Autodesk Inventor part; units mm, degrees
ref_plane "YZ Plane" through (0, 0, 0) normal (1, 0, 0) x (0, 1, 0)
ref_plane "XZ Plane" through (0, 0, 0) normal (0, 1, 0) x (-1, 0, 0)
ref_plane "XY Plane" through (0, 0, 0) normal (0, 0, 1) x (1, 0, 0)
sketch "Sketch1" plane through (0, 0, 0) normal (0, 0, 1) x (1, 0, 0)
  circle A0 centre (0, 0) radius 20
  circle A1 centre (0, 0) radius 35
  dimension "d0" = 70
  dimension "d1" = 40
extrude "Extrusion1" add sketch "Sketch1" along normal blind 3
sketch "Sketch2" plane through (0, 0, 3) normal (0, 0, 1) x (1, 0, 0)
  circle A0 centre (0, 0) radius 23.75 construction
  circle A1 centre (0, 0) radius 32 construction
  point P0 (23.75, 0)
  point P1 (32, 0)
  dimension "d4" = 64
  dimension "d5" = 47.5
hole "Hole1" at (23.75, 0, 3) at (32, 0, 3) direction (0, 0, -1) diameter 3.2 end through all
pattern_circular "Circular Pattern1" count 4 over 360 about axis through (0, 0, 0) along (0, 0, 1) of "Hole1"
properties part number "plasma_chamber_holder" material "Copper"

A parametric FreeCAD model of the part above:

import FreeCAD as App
import Part
import Sketcher

V = App.Vector
Q = App.Units.Quantity

doc = App.newDocument("Part")
body = doc.addObject("PartDesign::Body", "Body")

# Sketch on XY plane
sketch1 = body.newObject("Sketcher::SketchObject", "Sketch")
sketch1.AttachmentSupport = (doc.getObject("XY_Plane"), [""])
sketch1.MapMode = "FlatFace"
sketch1.addGeometry(Part.Circle(V(0, 0, 0), V(0, 0, 1), 35), False)
sketch1.addGeometry(Part.Circle(V(0, 0, 0), V(0, 0, 1), 20), False)
sketch1.addConstraint(Sketcher.Constraint("Coincident", 0, 3, -1, 1))
sketch1.addConstraint(Sketcher.Constraint("Coincident", 1, 3, -1, 1))
sketch1.addConstraint(Sketcher.Constraint("Diameter", 0, Q("70 mm")))
sketch1.addConstraint(Sketcher.Constraint("Diameter", 1, Q("40 mm")))
pad1 = body.newObject("PartDesign::Pad", "Pad")
pad1.Profile = sketch1
pad1.Length = 3

# Sketch on XY plane
sketch2 = body.newObject("Sketcher::SketchObject", "Sketch001")
sketch2.AttachmentSupport = (doc.getObject("XY_Plane"), [""])
sketch2.MapMode = "FlatFace"
sketch2.AttachmentOffset = App.Placement(V(0, 0, 3), App.Rotation())
sketch2.addGeometry(Part.Circle(V(23.75, 0, 0), V(0, 0, 1), 1.6), False)
sketch2.addGeometry(Part.Circle(V(32, 0, 0), V(0, 0, 1), 1.6), False)
sketch2.addConstraint(Sketcher.Constraint("Equal", 0, 1))
sketch2.addConstraint(Sketcher.Constraint("PointOnObject", 0, 3, -1))
sketch2.addConstraint(Sketcher.Constraint("PointOnObject", 1, 3, -1))
sketch2.addConstraint(Sketcher.Constraint("Diameter", 0, Q("3.2 mm")))
sketch2.addConstraint(Sketcher.Constraint("DistanceX", -1, 1, 1, 3, Q("32 mm")))
sketch2.addConstraint(Sketcher.Constraint("DistanceX", -1, 1, 0, 3, Q("23.75 mm")))
doc.recompute()
hole = body.newObject("PartDesign::Hole", "Hole")
hole.Profile = sketch2
hole.ThreadType = "None"
hole.Diameter = 3.2
hole.DepthType = "ThroughAll"
doc.recompute()

polarpattern = body.newObject("PartDesign::PolarPattern", "PolarPattern")
polarpattern.Originals = [hole]
polarpattern.Axis = (doc.getObject("Z_Axis"), [""])
polarpattern.Angle = 360
polarpattern.Occurrences = 4
body.Tip = polarpattern

doc.recompute()
